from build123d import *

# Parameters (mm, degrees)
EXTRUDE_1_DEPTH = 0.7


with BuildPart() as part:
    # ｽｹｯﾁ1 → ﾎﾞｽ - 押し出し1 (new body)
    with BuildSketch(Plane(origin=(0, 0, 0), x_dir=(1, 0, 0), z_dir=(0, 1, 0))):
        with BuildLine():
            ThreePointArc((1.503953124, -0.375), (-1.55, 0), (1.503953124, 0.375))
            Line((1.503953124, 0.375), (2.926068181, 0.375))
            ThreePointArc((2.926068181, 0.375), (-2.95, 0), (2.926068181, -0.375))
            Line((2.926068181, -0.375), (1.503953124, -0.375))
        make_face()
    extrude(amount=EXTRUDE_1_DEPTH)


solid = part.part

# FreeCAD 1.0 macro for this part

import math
import FreeCAD as App
import Part
import Sketcher

doc = App.newDocument("Part")
body = doc.addObject("PartDesign::Body", "Body")

sketch1 = body.newObject("Sketcher::SketchObject", "Sketch")
sketch1.AttachmentSupport = (doc.getObject("XZ_Plane"), [""])
sketch1.MapMode = "FlatFace"
sketch1.addGeometry([
    Part.ArcOfCircle(Part.Circle(App.Vector(0, 0, 0), App.Vector(0, 0, 1), 1.6), math.radians(14), math.radians(346)),
    Part.LineSegment(App.Vector(1.5, -0.4, 0), App.Vector(2.9, -0.4, 0)),
    Part.ArcOfCircle(Part.Circle(App.Vector(0, 0, 0), App.Vector(0, 0, 1), 3), math.radians(7), math.radians(353)),
    Part.LineSegment(App.Vector(2.9, 0.4, 0), App.Vector(1.5, 0.4, 0)),
], False)
sketch1.addConstraint([
    Sketcher.Constraint("Coincident", 0, 2, 1, 1),
    Sketcher.Constraint("Coincident", 1, 2, 2, 2),
    Sketcher.Constraint("Coincident", 2, 1, 3, 1),
    Sketcher.Constraint("Coincident", 3, 2, 0, 1),
    Sketcher.Constraint("Horizontal", 1),
    Sketcher.Constraint("Horizontal", 3),
    Sketcher.Constraint("Coincident", 0, 3, -1, 1),
    Sketcher.Constraint("Coincident", 2, 3, -1, 1),
    Sketcher.Constraint("Vertical", 1, 2, 2, 1),
    Sketcher.Constraint("Radius", 0, 1.55),
    Sketcher.Constraint("Radius", 2, 2.95),
    Sketcher.Constraint("DistanceY", 1, 2, 2, 1, 0.75),
])
pad1 = body.newObject("PartDesign::Pad", "Pad")
pad1.Profile = sketch1
pad1.Length = 0.7
pad1.Reversed = True

doc.recompute()
